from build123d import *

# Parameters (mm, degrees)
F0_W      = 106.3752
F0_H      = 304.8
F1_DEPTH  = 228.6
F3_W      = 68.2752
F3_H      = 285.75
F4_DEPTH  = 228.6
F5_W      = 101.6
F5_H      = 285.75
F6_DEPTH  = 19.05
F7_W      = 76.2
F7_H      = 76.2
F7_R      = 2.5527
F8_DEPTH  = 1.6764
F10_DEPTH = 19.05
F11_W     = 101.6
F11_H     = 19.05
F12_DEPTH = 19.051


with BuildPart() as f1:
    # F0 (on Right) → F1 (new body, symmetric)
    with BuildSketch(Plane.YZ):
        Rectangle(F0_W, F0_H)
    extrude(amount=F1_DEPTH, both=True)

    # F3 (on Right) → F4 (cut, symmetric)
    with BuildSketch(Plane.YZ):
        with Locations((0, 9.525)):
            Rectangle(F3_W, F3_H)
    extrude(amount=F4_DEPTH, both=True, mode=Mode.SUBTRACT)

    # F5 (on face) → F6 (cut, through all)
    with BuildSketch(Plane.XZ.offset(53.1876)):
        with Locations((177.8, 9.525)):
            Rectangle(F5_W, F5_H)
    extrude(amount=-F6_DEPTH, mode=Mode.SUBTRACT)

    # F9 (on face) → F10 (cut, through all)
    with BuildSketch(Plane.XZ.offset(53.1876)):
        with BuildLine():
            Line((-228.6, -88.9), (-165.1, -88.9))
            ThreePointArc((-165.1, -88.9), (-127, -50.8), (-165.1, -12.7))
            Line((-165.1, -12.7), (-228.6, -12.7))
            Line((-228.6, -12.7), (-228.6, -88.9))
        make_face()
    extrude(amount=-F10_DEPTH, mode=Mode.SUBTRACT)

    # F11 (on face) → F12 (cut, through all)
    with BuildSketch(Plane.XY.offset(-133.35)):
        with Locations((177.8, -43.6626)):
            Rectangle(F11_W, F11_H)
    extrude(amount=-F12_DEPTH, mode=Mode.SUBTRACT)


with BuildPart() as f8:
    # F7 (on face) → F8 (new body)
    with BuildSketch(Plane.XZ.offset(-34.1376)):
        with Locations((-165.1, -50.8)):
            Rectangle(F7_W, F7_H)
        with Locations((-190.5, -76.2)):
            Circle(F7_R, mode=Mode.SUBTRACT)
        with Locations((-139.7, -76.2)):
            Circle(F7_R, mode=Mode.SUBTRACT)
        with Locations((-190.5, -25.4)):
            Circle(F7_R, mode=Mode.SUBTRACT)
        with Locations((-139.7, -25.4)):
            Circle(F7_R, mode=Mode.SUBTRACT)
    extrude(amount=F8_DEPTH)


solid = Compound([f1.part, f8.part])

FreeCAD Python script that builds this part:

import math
import FreeCAD as App
import Part
import Sketcher
from FreeCAD import Vector
Q = App.Units.Quantity

doc = App.newDocument("Part")
params = doc.addObject("Spreadsheet::Sheet", "Params")
for row, (alias, value) in enumerate([
    ("sketch1_height", "12 in"),
    ("sketch1_width", "4.188 in"),
    ("pad1_length", "18 in"),
    ("sketch2_height", "11.25 in"),
    ("sketch2_width", "2.688 in"),
    ("pocket1_length", "18 in"),
    ("sketch3_width", "4 in"),
    ("sketch3_height", "11.25 in"),
    ("pocket2_length", "0.75 in"),
    ("sketch4_radius", "1.5 in"),
    ("sketch4_width", "2.5 in"),
    ("pocket3_length", "0.75 in"),
    ("sketch5_width", "4 in"),
    ("sketch5_height", "0.75 in"),
    ("sketch6_width", "3 in"),
    ("sketch6_diameter", "0.201 in"),
    ("pad2_length", "0.066 in"),
], start=1):
    params.set(f"A{row}", alias)
    params.set(f"B{row}", "=" + value)
    params.setAlias(f"B{row}", alias)

body = doc.addObject("PartDesign::Body", "Body")

# Sketch on YZ plane
sketch1 = body.newObject("Sketcher::SketchObject", "Sketch")
sketch1.AttachmentSupport = (doc.getObject("YZ_Plane"), [""])
sketch1.MapMode = "FlatFace"
sketch1.addGeometry([
    Part.LineSegment(Vector(-53.1876, 152.4, 0), Vector(-53.1876, -152.4, 0)),
    Part.LineSegment(Vector(-53.1876, -152.4, 0), Vector(53.1876, -152.4, 0)),
    Part.LineSegment(Vector(53.1876, -152.4, 0), Vector(53.1876, 152.4, 0)),
    Part.LineSegment(Vector(53.1876, 152.4, 0), Vector(-53.1876, 152.4, 0)),
], False)
sketch1.addConstraint([
    Sketcher.Constraint("Coincident", 0, 2, 1, 1),
    Sketcher.Constraint("Coincident", 1, 2, 2, 1),
    Sketcher.Constraint("Coincident", 2, 2, 3, 1),
    Sketcher.Constraint("Coincident", 3, 2, 0, 1),
    Sketcher.Constraint("Vertical", 0),
    Sketcher.Constraint("Horizontal", 1),
    Sketcher.Constraint("Vertical", 2),
    Sketcher.Constraint("Horizontal", 3),
    Sketcher.Constraint("Symmetric", 0, 2, 2, 2, -1, 1),
    Sketcher.Constraint("DistanceY", 0, 2, 0, 1, Q("12 in")),
    Sketcher.Constraint("DistanceX", 1, 1, 1, 2, Q("4.188 in")),
])
sketch1.setExpression("Constraints[9]", "Params.sketch1_height")
sketch1.setExpression("Constraints[10]", "Params.sketch1_width")
pad1 = body.newObject("PartDesign::Pad", "Pad")
pad1.Profile = sketch1
pad1.setExpression("Length", "Params.pad1_length")
pad1.Midplane = True

# Sketch on YZ plane
sketch2 = body.newObject("Sketcher::SketchObject", "Sketch001")
sketch2.AttachmentSupport = (doc.getObject("YZ_Plane"), [""])
sketch2.MapMode = "FlatFace"
sketch2.addGeometry([
    Part.LineSegment(Vector(-34.1376, 152.4, 0), Vector(-34.1376, -133.35, 0)),
    Part.LineSegment(Vector(-34.1376, -133.35, 0), Vector(34.1376, -133.35, 0)),
    Part.LineSegment(Vector(34.1376, -133.35, 0), Vector(34.1376, 152.4, 0)),
    Part.LineSegment(Vector(34.1376, 152.4, 0), Vector(-34.1376, 152.4, 0)),
], False)
sketch2.addConstraint([
    Sketcher.Constraint("Coincident", 0, 2, 1, 1),
    Sketcher.Constraint("Coincident", 1, 2, 2, 1),
    Sketcher.Constraint("Coincident", 2, 2, 3, 1),
    Sketcher.Constraint("Coincident", 3, 2, 0, 1),
    Sketcher.Constraint("Vertical", 0),
    Sketcher.Constraint("Horizontal", 1),
    Sketcher.Constraint("Vertical", 2),
    Sketcher.Constraint("Horizontal", 3),
    Sketcher.Constraint("DistanceY", -1, 1, 2, 2, Q("6 in")),
    Sketcher.Constraint("DistanceY", 0, 2, 0, 1, Q("11.25 in")),
    Sketcher.Constraint("DistanceX", 1, 1, 1, 2, Q("2.688 in")),
    Sketcher.Constraint("DistanceX", 0, 2, -1, 1, Q("1.344 in")),
])
sketch2.setExpression("Constraints[9]", "Params.sketch2_height")
sketch2.setExpression("Constraints[10]", "Params.sketch2_width")
pocket1 = body.newObject("PartDesign::Pocket", "Pocket")
pocket1.Profile = sketch2
pocket1.setExpression("Length", "Params.pocket1_length")
pocket1.Midplane = True

# Sketch on XZ plane
sketch3 = body.newObject("Sketcher::SketchObject", "Sketch002")
sketch3.AttachmentSupport = (doc.getObject("XZ_Plane"), [""])
sketch3.MapMode = "FlatFace"
sketch3.AttachmentOffset = App.Placement(Vector(0, 0, 2.094 * 25.4), App.Rotation())
sketch3.addGeometry([
    Part.LineSegment(Vector(127, 152.4, 0), Vector(127, -133.35, 0)),
    Part.LineSegment(Vector(127, -133.35, 0), Vector(228.6, -133.35, 0)),
    Part.LineSegment(Vector(228.6, -133.35, 0), Vector(228.6, 152.4, 0)),
    Part.LineSegment(Vector(228.6, 152.4, 0), Vector(127, 152.4, 0)),
], False)
sketch3.addConstraint([
    Sketcher.Constraint("Coincident", 0, 2, 1, 1),
    Sketcher.Constraint("Coincident", 1, 2, 2, 1),
    Sketcher.Constraint("Coincident", 2, 2, 3, 1),
    Sketcher.Constraint("Coincident", 3, 2, 0, 1),
    Sketcher.Constraint("Vertical", 0),
    Sketcher.Constraint("Horizontal", 1),
    Sketcher.Constraint("Vertical", 2),
    Sketcher.Constraint("Horizontal", 3),
    Sketcher.Constraint("DistanceX", 1, 1, 1, 2, Q("4 in")),
    Sketcher.Constraint("DistanceX", -1, 1, 0, 2, Q("5 in")),
    Sketcher.Constraint("DistanceY", -1, 1, 2, 2, Q("6 in")),
    Sketcher.Constraint("DistanceY", 0, 2, 0, 1, Q("11.25 in")),
])
sketch3.setExpression("Constraints[8]", "Params.sketch3_width")
sketch3.setExpression("Constraints[11]", "Params.sketch3_height")
pocket2 = body.newObject("PartDesign::Pocket", "Pocket001")
pocket2.Profile = sketch3
pocket2.setExpression("Length", "Params.pocket2_length")

# Sketch on XZ plane
sketch4 = body.newObject("Sketcher::SketchObject", "Sketch003")
sketch4.AttachmentSupport = (doc.getObject("XZ_Plane"), [""])
sketch4.MapMode = "FlatFace"
sketch4.AttachmentOffset = App.Placement(Vector(0, 0, 2.094 * 25.4), App.Rotation())
sketch4.addGeometry([
    Part.LineSegment(Vector(-228.6, -88.9, 0), Vector(-165.1, -88.9, 0)),
    Part.ArcOfCircle(Part.Circle(Vector(-165.1, -50.8, 0), Vector(0, 0, 1), 38.1), math.radians(-90), math.radians(90)),
    Part.LineSegment(Vector(-165.1, -12.7, 0), Vector(-228.6, -12.7, 0)),
    Part.LineSegment(Vector(-228.6, -12.7, 0), Vector(-228.6, -88.9, 0)),
], False)
sketch4.addConstraint([
    Sketcher.Constraint("Tangent", 0, 2, 1, 1),
    Sketcher.Constraint("Tangent", 1, 2, 2, 1),
    Sketcher.Constraint("Coincident", 2, 2, 3, 1),
    Sketcher.Constraint("Coincident", 3, 2, 0, 1),
    Sketcher.Constraint("Horizontal", 0),
    Sketcher.Constraint("Horizontal", 2),
    Sketcher.Constraint("Vertical", 3),
    Sketcher.Constraint("Radius", 1, Q("1.5 in")),
    Sketcher.Constraint("DistanceX", 0, 1, 0, 2, Q("2.5 in")),
    Sketcher.Constraint("DistanceY", 1, 3, -1, 1, Q("2 in")),
    Sketcher.Constraint("DistanceX", 2, 2, -1, 1, Q("9 in")),
])
sketch4.setExpression("Constraints[7]", "Params.sketch4_radius")
sketch4.setExpression("Constraints[8]", "Params.sketch4_width")
pocket3 = body.newObject("PartDesign::Pocket", "Pocket002")
pocket3.Profile = sketch4
pocket3.setExpression("Length", "Params.pocket3_length")

# Sketch on XY plane
sketch5 = body.newObject("Sketcher::SketchObject", "Sketch004")
sketch5.AttachmentSupport = (doc.getObject("XY_Plane"), [""])
sketch5.MapMode = "FlatFace"
sketch5.AttachmentOffset = App.Placement(Vector(0, 0, -5.25 * 25.4), App.Rotation())
sketch5.addGeometry([
    Part.LineSegment(Vector(127, -34.1376, 0), Vector(127, -53.1876, 0)),
    Part.LineSegment(Vector(127, -53.1876, 0), Vector(228.6, -53.1876, 0)),
    Part.LineSegment(Vector(228.6, -53.1876, 0), Vector(228.6, -34.1376, 0)),
    Part.LineSegment(Vector(228.6, -34.1376, 0), Vector(127, -34.1376, 0)),
], False)
sketch5.addConstraint([
    Sketcher.Constraint("Coincident", 0, 2, 1, 1),
    Sketcher.Constraint("Coincident", 1, 2, 2, 1),
    Sketcher.Constraint("Coincident", 2, 2, 3, 1),
    Sketcher.Constraint("Coincident", 3, 2, 0, 1),
    Sketcher.Constraint("Vertical", 0),
    Sketcher.Constraint("Horizontal", 1),
    Sketcher.Constraint("Vertical", 2),
    Sketcher.Constraint("Horizontal", 3),
    Sketcher.Constraint("DistanceX", 1, 1, 1, 2, Q("4 in")),
    Sketcher.Constraint("DistanceX", -1, 1, 0, 2, Q("5 in")),
    Sketcher.Constraint("DistanceY", 0, 2, 0, 1, Q("0.75 in")),
    Sketcher.Constraint("DistanceY", 0, 2, -1, 1, Q("2.094 in")),
])
sketch5.setExpression("Constraints[8]", "Params.sketch5_width")
sketch5.setExpression("Constraints[10]", "Params.sketch5_height")
pocket4 = body.newObject("PartDesign::Pocket", "Pocket003")
pocket4.Profile = sketch5
pocket4.Type = "ThroughAll"
body2 = doc.addObject("PartDesign::Body", "Body001")

# Sketch on XZ plane
sketch6 = body2.newObject("Sketcher::SketchObject", "Sketch005")
sketch6.AttachmentSupport = (doc.getObject("XZ_Plane001"), [""])
sketch6.MapMode = "FlatFace"
sketch6.AttachmentOffset = App.Placement(Vector(0, 0, -1.344 * 25.4), App.Rotation())
sketch6.addGeometry([
    Part.LineSegment(Vector(-203.2, -12.7, 0), Vector(-203.2, -88.9, 0)),  # 0
    Part.LineSegment(Vector(-203.2, -88.9, 0), Vector(-127, -88.9, 0)),  # 1
    Part.LineSegment(Vector(-127, -88.9, 0), Vector(-127, -12.7, 0)),  # 2
    Part.LineSegment(Vector(-127, -12.7, 0), Vector(-203.2, -12.7, 0)),  # 3
    Part.Circle(Vector(-190.5, -76.2, 0), Vector(0, 0, 1), 2.5527),  # 4
    Part.Circle(Vector(-139.7, -76.2, 0), Vector(0, 0, 1), 2.5527),  # 5
    Part.Circle(Vector(-190.5, -25.4, 0), Vector(0, 0, 1), 2.5527),  # 6
    Part.Circle(Vector(-139.7, -25.4, 0), Vector(0, 0, 1), 2.5527),  # 7
], False)
sketch6.addConstraint([
    Sketcher.Constraint("Coincident", 0, 2, 1, 1),
    Sketcher.Constraint("Coincident", 1, 2, 2, 1),
    Sketcher.Constraint("Coincident", 2, 2, 3, 1),
    Sketcher.Constraint("Coincident", 3, 2, 0, 1),
    Sketcher.Constraint("Vertical", 0),
    Sketcher.Constraint("Horizontal", 1),
    Sketcher.Constraint("Vertical", 2),
    Sketcher.Constraint("Horizontal", 3),
    Sketcher.Constraint("Equal", 4, 5),
    Sketcher.Constraint("Equal", 5, 6),
    Sketcher.Constraint("Equal", 6, 7),
    Sketcher.Constraint("Horizontal", 4, 3, 5, 3),
    Sketcher.Constraint("Horizontal", 6, 3, 7, 3),
    Sketcher.Constraint("Vertical", 4, 3, 6, 3),
    Sketcher.Constraint("Vertical", 5, 3, 7, 3),
    Sketcher.Constraint("Equal", 3, 0),
    Sketcher.Constraint("DistanceX", 1, 1, 1, 2, Q("3 in")),
    Sketcher.Constraint("Diameter", 4, Q("0.201 in")),
    Sketcher.Constraint("DistanceY", 4, 3, -1, 1, Q("3 in")),
    Sketcher.Constraint("DistanceY", 6, 3, -1, 1, Q("1 in")),
    Sketcher.Constraint("DistanceX", 0, 2, -1, 1, Q("8 in")),
    Sketcher.Constraint("DistanceX", 4, 3, 5, 3, Q("2 in")),
    Sketcher.Constraint("DistanceX", 4, 3, -1, 1, Q("7.5 in")),
    Sketcher.Constraint("DistanceY", 0, 2, -1, 1, Q("3.5 in")),
])
sketch6.setExpression("Constraints[16]", "Params.sketch6_width")
sketch6.setExpression("Constraints[17]", "Params.sketch6_diameter")
pad2 = body2.newObject("PartDesign::Pad", "Pad001")
pad2.Profile = sketch6
pad2.setExpression("Length", "Params.pad2_length")

doc.recompute()
